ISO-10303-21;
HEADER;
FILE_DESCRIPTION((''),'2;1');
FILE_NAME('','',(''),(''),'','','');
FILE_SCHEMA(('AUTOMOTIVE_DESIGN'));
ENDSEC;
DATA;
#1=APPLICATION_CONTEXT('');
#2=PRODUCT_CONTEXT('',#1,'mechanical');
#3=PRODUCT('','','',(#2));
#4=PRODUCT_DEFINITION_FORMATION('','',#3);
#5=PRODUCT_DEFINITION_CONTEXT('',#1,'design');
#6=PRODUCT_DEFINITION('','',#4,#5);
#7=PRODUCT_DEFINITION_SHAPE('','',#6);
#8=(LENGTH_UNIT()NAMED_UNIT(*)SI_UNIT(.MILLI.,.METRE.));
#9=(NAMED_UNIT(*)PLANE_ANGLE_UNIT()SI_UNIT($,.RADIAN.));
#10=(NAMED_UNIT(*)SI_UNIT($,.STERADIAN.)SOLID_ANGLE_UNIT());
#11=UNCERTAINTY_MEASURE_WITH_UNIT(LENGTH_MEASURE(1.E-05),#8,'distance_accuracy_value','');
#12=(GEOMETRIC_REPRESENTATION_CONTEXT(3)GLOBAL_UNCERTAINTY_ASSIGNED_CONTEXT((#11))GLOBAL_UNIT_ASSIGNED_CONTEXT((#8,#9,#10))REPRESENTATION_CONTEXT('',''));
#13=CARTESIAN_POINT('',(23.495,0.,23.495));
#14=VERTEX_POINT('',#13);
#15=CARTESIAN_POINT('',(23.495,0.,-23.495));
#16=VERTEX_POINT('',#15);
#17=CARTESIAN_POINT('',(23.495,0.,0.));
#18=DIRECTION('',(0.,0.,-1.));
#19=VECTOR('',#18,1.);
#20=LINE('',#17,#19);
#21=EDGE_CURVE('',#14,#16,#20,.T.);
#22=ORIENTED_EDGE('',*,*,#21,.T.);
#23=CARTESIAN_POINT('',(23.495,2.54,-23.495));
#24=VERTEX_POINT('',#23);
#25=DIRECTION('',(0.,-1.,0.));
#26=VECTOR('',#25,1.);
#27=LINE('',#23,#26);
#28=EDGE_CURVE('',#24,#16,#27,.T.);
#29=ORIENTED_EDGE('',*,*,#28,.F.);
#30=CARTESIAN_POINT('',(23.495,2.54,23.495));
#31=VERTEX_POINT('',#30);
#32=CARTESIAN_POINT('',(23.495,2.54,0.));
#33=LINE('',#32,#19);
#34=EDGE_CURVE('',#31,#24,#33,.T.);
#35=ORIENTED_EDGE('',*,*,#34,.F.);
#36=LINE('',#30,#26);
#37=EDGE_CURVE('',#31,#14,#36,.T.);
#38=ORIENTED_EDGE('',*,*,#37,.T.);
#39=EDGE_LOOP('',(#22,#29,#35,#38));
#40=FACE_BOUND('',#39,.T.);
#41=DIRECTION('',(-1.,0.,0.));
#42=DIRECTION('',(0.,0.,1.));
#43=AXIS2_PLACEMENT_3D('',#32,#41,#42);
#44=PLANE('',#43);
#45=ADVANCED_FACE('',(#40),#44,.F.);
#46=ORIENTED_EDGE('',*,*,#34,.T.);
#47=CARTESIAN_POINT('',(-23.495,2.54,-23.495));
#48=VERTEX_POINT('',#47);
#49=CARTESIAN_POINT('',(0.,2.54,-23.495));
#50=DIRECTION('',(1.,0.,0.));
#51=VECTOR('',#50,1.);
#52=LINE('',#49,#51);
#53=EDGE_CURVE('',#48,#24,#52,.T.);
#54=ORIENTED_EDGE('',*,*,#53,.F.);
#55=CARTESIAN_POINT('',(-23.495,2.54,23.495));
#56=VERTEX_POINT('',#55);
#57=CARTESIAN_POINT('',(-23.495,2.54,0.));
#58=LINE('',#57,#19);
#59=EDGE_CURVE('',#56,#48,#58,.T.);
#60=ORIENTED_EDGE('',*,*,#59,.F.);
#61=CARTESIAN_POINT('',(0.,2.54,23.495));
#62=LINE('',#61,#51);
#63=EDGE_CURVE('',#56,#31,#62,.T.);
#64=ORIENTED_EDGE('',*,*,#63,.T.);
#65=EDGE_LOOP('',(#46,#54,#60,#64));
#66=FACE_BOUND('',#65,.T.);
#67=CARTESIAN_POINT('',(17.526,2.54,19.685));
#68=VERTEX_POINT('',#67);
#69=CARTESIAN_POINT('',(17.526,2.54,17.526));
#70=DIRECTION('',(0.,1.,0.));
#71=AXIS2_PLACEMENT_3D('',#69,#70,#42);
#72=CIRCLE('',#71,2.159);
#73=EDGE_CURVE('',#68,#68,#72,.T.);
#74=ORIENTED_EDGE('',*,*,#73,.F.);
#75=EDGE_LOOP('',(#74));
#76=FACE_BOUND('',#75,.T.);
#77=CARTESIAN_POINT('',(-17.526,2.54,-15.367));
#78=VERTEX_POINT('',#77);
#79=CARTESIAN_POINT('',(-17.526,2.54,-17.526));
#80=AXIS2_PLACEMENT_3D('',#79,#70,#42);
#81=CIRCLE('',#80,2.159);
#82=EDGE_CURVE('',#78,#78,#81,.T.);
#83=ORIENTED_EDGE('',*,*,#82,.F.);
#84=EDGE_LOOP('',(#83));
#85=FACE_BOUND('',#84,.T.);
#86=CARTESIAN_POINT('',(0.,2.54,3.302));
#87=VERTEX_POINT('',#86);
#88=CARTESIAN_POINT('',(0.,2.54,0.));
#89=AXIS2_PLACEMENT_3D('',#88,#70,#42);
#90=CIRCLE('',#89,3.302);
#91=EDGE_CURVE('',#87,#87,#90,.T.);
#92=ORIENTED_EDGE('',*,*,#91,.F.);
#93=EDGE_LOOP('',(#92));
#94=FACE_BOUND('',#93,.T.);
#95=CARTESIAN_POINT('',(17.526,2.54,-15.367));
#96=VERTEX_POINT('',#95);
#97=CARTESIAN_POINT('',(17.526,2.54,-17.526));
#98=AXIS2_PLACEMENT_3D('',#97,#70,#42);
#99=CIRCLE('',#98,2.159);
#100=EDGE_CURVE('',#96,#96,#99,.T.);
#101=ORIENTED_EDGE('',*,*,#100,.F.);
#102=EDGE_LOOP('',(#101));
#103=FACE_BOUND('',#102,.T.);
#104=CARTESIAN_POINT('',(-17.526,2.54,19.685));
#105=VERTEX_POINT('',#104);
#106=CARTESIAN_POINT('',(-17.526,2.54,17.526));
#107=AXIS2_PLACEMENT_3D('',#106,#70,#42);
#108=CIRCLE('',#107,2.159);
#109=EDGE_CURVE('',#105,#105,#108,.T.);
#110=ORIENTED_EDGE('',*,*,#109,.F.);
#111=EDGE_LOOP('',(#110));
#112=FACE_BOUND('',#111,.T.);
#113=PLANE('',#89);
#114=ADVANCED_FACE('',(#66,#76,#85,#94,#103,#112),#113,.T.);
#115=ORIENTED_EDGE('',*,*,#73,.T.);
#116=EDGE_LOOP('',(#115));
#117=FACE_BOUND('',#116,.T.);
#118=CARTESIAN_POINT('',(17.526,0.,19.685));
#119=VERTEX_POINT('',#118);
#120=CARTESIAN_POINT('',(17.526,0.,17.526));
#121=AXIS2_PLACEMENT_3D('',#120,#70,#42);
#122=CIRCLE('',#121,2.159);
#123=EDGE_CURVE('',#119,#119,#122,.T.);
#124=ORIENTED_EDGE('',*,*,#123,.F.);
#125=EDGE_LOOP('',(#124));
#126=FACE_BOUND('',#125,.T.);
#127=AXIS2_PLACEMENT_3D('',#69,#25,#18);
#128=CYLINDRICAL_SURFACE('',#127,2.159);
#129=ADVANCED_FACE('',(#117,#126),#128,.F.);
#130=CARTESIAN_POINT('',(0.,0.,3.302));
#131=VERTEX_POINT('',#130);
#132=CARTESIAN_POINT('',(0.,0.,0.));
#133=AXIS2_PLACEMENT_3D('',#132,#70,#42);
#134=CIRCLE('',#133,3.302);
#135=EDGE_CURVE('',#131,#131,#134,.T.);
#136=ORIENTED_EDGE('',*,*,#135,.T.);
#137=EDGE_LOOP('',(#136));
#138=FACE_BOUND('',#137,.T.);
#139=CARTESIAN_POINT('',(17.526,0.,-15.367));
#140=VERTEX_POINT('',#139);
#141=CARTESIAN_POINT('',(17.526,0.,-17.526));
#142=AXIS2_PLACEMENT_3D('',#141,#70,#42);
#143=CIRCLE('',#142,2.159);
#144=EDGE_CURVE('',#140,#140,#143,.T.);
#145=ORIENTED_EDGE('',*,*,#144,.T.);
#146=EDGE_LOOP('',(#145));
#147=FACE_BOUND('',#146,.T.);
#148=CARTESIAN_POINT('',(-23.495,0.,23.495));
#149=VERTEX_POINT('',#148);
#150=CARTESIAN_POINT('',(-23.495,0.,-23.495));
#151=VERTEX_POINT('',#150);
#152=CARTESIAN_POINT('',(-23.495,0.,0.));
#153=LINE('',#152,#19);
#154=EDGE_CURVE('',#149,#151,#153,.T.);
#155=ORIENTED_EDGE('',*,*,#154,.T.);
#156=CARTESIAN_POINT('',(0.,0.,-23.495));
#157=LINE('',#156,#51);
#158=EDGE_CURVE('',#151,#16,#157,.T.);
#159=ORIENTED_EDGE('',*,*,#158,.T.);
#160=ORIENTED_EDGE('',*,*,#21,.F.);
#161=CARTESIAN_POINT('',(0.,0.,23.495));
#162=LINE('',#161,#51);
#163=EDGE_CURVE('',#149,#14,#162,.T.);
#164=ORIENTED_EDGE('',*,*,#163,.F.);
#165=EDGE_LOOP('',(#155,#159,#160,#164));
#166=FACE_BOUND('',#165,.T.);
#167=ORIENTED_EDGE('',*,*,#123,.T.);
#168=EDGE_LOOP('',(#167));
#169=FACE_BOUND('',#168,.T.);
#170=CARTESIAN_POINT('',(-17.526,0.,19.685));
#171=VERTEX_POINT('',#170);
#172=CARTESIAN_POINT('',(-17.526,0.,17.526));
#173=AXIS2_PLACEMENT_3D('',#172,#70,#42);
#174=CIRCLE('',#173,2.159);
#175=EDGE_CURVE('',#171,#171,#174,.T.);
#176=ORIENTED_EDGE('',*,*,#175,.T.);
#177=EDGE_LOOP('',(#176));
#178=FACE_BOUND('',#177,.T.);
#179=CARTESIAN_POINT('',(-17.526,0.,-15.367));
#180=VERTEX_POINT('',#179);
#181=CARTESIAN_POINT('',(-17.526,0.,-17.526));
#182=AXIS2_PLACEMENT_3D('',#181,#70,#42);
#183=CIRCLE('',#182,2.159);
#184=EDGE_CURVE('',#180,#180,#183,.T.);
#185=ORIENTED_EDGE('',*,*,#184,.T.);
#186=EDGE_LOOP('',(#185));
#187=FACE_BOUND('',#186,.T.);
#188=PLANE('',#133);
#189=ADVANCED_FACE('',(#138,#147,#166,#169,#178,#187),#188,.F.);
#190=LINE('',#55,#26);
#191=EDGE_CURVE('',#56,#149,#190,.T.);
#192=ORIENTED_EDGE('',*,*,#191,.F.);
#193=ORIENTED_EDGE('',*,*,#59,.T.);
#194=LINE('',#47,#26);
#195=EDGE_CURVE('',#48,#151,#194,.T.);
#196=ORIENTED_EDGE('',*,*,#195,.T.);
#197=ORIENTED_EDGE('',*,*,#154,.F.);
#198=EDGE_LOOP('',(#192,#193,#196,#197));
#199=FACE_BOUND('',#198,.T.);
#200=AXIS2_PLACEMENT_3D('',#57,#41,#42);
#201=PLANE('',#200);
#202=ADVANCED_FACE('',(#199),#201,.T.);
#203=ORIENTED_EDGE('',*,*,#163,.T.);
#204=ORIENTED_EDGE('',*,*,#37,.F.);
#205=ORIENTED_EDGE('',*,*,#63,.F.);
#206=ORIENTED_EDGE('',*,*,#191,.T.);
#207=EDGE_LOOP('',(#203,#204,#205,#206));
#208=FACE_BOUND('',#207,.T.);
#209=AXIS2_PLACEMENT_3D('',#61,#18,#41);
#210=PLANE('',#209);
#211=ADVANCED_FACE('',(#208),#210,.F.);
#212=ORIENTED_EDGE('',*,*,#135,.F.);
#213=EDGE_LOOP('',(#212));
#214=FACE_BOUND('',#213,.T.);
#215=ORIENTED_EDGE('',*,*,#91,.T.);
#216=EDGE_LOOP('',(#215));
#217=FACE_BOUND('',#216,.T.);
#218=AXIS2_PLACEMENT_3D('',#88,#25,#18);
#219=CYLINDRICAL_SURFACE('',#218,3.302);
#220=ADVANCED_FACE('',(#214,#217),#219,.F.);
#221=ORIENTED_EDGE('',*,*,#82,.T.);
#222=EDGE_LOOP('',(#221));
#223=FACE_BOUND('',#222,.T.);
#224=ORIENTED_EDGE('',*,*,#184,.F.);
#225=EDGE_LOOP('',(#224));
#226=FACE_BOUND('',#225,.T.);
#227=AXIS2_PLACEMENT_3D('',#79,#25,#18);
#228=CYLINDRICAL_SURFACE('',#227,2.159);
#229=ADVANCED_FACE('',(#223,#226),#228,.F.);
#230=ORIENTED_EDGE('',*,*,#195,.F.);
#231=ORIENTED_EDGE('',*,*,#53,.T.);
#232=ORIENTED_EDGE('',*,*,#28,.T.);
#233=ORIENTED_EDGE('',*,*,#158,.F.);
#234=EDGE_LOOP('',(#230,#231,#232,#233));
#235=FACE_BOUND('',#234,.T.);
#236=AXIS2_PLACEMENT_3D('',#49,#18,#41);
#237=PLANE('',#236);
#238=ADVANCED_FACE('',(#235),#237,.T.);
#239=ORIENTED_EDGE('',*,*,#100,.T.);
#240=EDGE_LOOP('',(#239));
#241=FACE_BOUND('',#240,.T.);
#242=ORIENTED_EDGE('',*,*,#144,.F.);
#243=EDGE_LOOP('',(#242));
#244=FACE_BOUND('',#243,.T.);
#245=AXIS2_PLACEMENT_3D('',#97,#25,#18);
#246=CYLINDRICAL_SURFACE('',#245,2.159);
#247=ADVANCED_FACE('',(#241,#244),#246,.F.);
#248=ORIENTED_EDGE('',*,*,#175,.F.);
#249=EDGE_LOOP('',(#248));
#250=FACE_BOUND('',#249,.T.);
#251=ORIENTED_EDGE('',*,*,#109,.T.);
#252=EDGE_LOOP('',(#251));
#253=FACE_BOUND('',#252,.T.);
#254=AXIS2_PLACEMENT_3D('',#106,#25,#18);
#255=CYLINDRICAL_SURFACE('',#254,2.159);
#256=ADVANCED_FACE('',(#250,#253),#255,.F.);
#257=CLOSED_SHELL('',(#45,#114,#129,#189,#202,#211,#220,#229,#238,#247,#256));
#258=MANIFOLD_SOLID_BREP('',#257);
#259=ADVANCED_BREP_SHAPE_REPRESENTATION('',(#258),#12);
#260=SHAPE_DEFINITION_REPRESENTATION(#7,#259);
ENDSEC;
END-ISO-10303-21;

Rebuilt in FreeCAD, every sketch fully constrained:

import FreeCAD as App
import Part
import Sketcher
Q = App.Units.Quantity


def add_polygon(sketch, points):
    """Adds a closed chain of lines whose ends are joined by coincident constraints."""
    first, n = sketch.GeometryCount, len(points)
    for a, b in zip(points, points[1:] + points[:1]):
        sketch.addGeometry(Part.LineSegment(App.Vector(*a, 0), App.Vector(*b, 0)), False)
    for i in range(n):
        sketch.addConstraint(Sketcher.Constraint("Coincident", first + i, 2, first + (i + 1) % n, 1))

doc = App.newDocument("Part")
body = doc.addObject("PartDesign::Body", "Body")

# Sketch on XZ plane
sketch1 = body.newObject("Sketcher::SketchObject", "Sketch")
sketch1.AttachmentSupport = (doc.getObject("XZ_Plane"), [""])
sketch1.MapMode = "FlatFace"
add_polygon(sketch1, [(-23.5, -23.5), (-23.5, 23.5), (23.5, 23.5), (23.5, -23.5)])  # lines 0-3
sketch1.addGeometry(Part.Circle(App.Vector(-17.5, 17.5, 0), App.Vector(0, 0, 1), 2.2), False)  # 4
sketch1.addGeometry(Part.Circle(App.Vector(17.5, 17.5, 0), App.Vector(0, 0, 1), 2.2), False)  # 5
sketch1.addGeometry(Part.Circle(App.Vector(-17.5, -17.5, 0), App.Vector(0, 0, 1), 2.2), False)  # 6
sketch1.addGeometry(Part.Circle(App.Vector(0, 0, 0), App.Vector(0, 0, 1), 3.3), False)  # 7
sketch1.addGeometry(Part.Circle(App.Vector(17.5, -17.5, 0), App.Vector(0, 0, 1), 2.2), False)  # 8
sketch1.addConstraint([
    Sketcher.Constraint("Vertical", 0),
    Sketcher.Constraint("Horizontal", 1),
    Sketcher.Constraint("Vertical", 2),
    Sketcher.Constraint("Horizontal", 3),
    Sketcher.Constraint("Coincident", 7, 3, -1, 1),
    Sketcher.Constraint("Equal", 4, 5),
    Sketcher.Constraint("Equal", 5, 6),
    Sketcher.Constraint("Equal", 6, 8),
    Sketcher.Constraint("Symmetric", 5, 3, 6, 3, -1, 1),
    Sketcher.Constraint("Symmetric", 4, 3, 8, 3, -1, 1),
    Sketcher.Constraint("Symmetric", 0, 2, 2, 2, -1, 1),
    Sketcher.Constraint("Symmetric", 4, 3, 5, 3, -2),
    Sketcher.Constraint("Equal", 3, 0),
    Sketcher.Constraint("Diameter", 4, Q("0.17 in")),
    Sketcher.Constraint("Diameter", 7, Q("0.26 in")),
    Sketcher.Constraint("DistanceX", 1, 1, 1, 2, Q("1.85 in")),
    Sketcher.Constraint("DistanceX", 4, 3, -1, 1, Q("0.69 in")),
    Sketcher.Constraint("DistanceY", -1, 1, 4, 3, Q("0.69 in")),
])
pad1 = body.newObject("PartDesign::Pad", "Pad")
pad1.Profile = sketch1
pad1.Length = Q("0.1 in")
pad1.Reversed = True

doc.recompute()
